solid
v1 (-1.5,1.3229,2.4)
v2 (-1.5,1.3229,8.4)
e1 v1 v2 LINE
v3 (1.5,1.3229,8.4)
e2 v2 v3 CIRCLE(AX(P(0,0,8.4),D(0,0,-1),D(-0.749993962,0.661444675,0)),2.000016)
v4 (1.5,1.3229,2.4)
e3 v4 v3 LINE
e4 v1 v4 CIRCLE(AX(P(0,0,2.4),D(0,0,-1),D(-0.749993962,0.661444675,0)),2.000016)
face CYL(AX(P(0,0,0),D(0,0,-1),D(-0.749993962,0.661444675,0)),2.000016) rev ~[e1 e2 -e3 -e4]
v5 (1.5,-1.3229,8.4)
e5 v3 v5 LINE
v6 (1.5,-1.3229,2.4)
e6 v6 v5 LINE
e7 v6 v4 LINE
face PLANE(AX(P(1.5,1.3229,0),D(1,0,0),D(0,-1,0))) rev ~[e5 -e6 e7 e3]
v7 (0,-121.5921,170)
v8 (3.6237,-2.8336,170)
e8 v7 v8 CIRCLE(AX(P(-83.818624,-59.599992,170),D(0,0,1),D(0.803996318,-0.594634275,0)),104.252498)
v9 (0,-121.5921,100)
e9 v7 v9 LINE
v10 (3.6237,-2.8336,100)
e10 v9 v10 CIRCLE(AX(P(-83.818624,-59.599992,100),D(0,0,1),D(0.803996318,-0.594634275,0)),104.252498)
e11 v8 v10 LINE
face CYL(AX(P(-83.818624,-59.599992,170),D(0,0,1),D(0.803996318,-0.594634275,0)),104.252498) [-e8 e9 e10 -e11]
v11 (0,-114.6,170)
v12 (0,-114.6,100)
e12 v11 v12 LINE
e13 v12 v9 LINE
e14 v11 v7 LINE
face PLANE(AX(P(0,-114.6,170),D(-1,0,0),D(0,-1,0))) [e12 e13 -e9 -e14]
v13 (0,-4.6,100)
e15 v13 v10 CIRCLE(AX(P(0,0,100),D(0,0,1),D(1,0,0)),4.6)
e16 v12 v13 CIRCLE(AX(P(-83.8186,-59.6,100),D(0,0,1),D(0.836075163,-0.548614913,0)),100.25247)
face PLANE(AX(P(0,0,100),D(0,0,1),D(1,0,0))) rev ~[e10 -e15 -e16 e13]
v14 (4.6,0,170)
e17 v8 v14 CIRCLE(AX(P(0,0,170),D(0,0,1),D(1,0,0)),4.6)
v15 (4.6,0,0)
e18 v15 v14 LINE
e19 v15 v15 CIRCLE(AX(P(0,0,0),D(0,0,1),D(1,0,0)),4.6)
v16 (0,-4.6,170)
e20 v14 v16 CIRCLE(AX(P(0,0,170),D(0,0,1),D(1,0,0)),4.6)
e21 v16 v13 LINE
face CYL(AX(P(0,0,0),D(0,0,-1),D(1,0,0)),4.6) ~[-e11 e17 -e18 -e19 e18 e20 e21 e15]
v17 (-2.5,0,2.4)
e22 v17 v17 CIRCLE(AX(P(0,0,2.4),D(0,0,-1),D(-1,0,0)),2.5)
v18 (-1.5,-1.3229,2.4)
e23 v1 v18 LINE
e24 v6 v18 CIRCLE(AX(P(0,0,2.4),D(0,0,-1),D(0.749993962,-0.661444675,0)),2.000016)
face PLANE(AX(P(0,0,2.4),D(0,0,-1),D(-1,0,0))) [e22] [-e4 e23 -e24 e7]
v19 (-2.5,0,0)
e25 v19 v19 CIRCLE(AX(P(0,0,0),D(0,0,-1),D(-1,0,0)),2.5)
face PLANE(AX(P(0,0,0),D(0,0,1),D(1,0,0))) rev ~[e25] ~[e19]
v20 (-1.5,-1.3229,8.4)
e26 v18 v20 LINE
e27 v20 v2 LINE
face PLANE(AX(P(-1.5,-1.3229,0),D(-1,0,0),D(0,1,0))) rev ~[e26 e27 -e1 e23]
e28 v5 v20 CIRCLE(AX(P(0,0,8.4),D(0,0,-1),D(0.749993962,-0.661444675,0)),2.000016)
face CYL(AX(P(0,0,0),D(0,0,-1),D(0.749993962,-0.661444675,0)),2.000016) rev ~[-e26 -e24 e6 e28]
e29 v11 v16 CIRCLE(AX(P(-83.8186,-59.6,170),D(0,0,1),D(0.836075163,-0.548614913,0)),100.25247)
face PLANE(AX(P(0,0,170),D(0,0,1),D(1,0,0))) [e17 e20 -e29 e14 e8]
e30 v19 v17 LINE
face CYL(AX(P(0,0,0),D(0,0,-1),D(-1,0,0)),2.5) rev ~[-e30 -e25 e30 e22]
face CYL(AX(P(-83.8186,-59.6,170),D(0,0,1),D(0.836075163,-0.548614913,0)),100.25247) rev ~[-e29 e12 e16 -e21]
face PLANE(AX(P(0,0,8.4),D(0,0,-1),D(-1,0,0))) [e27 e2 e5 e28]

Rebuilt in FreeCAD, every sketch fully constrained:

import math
import FreeCAD as App
import Part
import Sketcher
from FreeCAD import Vector
Q = App.Units.Quantity

doc = App.newDocument("Part")
params = doc.addObject("Spreadsheet::Sheet", "Params")
for row, (alias, value) in enumerate([
    ("sketch1_diameter", "9.2 mm"),
    ("pad1_length", "170 mm"),
    ("sketch2_radius", "4.6 mm"),
    ("pad2_length", "70 mm"),
    ("sketch3_radius", "2 mm"),
    ("pocket1_length", "8.4 mm"),
    ("sketch4_diameter", "5 mm"),
    ("pocket2_length", "2.4 mm"),
], start=1):
    params.set(f"A{row}", alias)
    params.set(f"B{row}", "=" + value)
    params.setAlias(f"B{row}", alias)

body = doc.addObject("PartDesign::Body", "Body")

# Sketch on XY plane
sketch1 = doc.addObject("Sketcher::SketchObject", "Sketch")
body.addObject(sketch1)
sketch1.AttachmentSupport = (doc.XY_Plane, [""])
sketch1.MapMode = "FlatFace"
sketch1.addGeometry(Part.Circle(Vector(0, 0, 0), Vector(0, 0, 1), 4.6), False)
sketch1.addConstraint([
    Sketcher.Constraint("Coincident", 0, 3, -1, 1),
    Sketcher.Constraint("Diameter", 0, Q("9.2 mm")),
])
sketch1.setExpression("Constraints[1]", "Params.sketch1_diameter")
pad1 = doc.addObject("PartDesign::Pad", "Pad")
body.addObject(pad1)
pad1.Profile = sketch1
pad1.setExpression("Length", "Params.pad1_length")

# Sketch on XY plane
sketch2 = doc.addObject("Sketcher::SketchObject", "Sketch001")
body.addObject(sketch2)
sketch2.AttachmentSupport = (doc.XY_Plane, [""])
sketch2.MapMode = "FlatFace"
sketch2.AttachmentOffset = App.Placement(Vector(0, 0, 170), App.Rotation())
sketch2.addGeometry([
    Part.ArcOfCircle(Part.Circle(Vector(0, 0, 0), Vector(0, 0, 1), 4.6), math.radians(-90), math.radians(-38.024099)),
    Part.ArcOfCircle(Part.Circle(Vector(-83.8186, -59.6, 0), Vector(0, 0, 1), 100.25247), math.radians(-33.272042), math.radians(33.272042)),
    Part.LineSegment(Vector(0, -114.6, 0), Vector(0, -121.5921, 0)),
    Part.ArcOfCircle(Part.Circle(Vector(-83.8186, -59.6, 0), Vector(0, 0, 1), 104.252473), math.radians(-36.486569), math.radians(32.991107)),
], False)
sketch2.addConstraint([
    Sketcher.Constraint("Coincident", 0, 1, 1, 2),
    Sketcher.Constraint("Coincident", 1, 1, 2, 1),
    Sketcher.Constraint("Coincident", 2, 2, 3, 1),
    Sketcher.Constraint("Coincident", 3, 2, 0, 2),
    Sketcher.Constraint("Vertical", 2),
    Sketcher.Constraint("Coincident", 0, 3, -1, 1),
    Sketcher.Constraint("Coincident", 3, 3, 1, 3),
    Sketcher.Constraint("PointOnObject", 0, 1, -2),
    Sketcher.Constraint("PointOnObject", 1, 1, -2),
    Sketcher.Constraint("DistanceY", 1, 1, 0, 1, Q("110 mm")),
    Sketcher.Constraint("Radius", 0, Q("4.6 mm")),
    Sketcher.Constraint("Radius", 1, Q("100.2525 mm")),
    Sketcher.Constraint("Radius", 3, Q("104.2525 mm")),
])
sketch2.setExpression("Constraints[10]", "Params.sketch2_radius")
pad2 = doc.addObject("PartDesign::Pad", "Pad001")
body.addObject(pad2)
pad2.Profile = sketch2
pad2.setExpression("Length", "Params.pad2_length")
pad2.Reversed = True

# Sketch on XY plane
sketch3 = doc.addObject("Sketcher::SketchObject", "Sketch002")
body.addObject(sketch3)
sketch3.AttachmentSupport = (doc.XY_Plane, [""])
sketch3.MapMode = "FlatFace"
sketch3.addGeometry([
    Part.ArcOfCircle(Part.Circle(Vector(0, 0, 0), Vector(0, 0, 1), 2.000016), math.radians(41.410145), math.radians(138.589855)),
    Part.LineSegment(Vector(1.5, 1.3229, 0), Vector(1.5, -1.3229, 0)),
    Part.ArcOfCircle(Part.Circle(Vector(0, 0, 0), Vector(0, 0, 1), 2.000016), math.radians(-138.589855), math.radians(-41.410145)),
    Part.LineSegment(Vector(-1.5, -1.3229, 0), Vector(-1.5, 1.3229, 0)),
], False)
sketch3.addConstraint([
    Sketcher.Constraint("Coincident", 0, 1, 1, 1),
    Sketcher.Constraint("Coincident", 1, 2, 2, 2),
    Sketcher.Constraint("Coincident", 2, 1, 3, 1),
    Sketcher.Constraint("Coincident", 3, 2, 0, 2),
    Sketcher.Constraint("Vertical", 1),
    Sketcher.Constraint("Vertical", 3),
    Sketcher.Constraint("Coincident", 0, 3, -1, 1),
    Sketcher.Constraint("Coincident", 2, 3, -1, 1),
    Sketcher.Constraint("Equal", 0, 2),
    Sketcher.Constraint("Horizontal", 1, 2, 2, 1),
    Sketcher.Constraint("Radius", 0, Q("2 mm")),
    Sketcher.Constraint("DistanceX", 2, 1, 1, 2, Q("3 mm")),
])
sketch3.setExpression("Constraints[10]", "Params.sketch3_radius")
pocket1 = doc.addObject("PartDesign::Pocket", "Pocket")
body.addObject(pocket1)
pocket1.Profile = sketch3
pocket1.setExpression("Length", "Params.pocket1_length")
pocket1.Reversed = True

# Sketch on XY plane
sketch4 = doc.addObject("Sketcher::SketchObject", "Sketch003")
body.addObject(sketch4)
sketch4.AttachmentSupport = (doc.XY_Plane, [""])
sketch4.MapMode = "FlatFace"
sketch4.addGeometry(Part.Circle(Vector(0, 0, 0), Vector(0, 0, 1), 2.5), False)
sketch4.addConstraint([
    Sketcher.Constraint("Coincident", 0, 3, -1, 1),
    Sketcher.Constraint("Diameter", 0, Q("5 mm")),
])
sketch4.setExpression("Constraints[1]", "Params.sketch4_diameter")
pocket2 = doc.addObject("PartDesign::Pocket", "Pocket001")
body.addObject(pocket2)
pocket2.Profile = sketch4
pocket2.setExpression("Length", "Params.pocket2_length")
pocket2.Reversed = True

doc.recompute()
